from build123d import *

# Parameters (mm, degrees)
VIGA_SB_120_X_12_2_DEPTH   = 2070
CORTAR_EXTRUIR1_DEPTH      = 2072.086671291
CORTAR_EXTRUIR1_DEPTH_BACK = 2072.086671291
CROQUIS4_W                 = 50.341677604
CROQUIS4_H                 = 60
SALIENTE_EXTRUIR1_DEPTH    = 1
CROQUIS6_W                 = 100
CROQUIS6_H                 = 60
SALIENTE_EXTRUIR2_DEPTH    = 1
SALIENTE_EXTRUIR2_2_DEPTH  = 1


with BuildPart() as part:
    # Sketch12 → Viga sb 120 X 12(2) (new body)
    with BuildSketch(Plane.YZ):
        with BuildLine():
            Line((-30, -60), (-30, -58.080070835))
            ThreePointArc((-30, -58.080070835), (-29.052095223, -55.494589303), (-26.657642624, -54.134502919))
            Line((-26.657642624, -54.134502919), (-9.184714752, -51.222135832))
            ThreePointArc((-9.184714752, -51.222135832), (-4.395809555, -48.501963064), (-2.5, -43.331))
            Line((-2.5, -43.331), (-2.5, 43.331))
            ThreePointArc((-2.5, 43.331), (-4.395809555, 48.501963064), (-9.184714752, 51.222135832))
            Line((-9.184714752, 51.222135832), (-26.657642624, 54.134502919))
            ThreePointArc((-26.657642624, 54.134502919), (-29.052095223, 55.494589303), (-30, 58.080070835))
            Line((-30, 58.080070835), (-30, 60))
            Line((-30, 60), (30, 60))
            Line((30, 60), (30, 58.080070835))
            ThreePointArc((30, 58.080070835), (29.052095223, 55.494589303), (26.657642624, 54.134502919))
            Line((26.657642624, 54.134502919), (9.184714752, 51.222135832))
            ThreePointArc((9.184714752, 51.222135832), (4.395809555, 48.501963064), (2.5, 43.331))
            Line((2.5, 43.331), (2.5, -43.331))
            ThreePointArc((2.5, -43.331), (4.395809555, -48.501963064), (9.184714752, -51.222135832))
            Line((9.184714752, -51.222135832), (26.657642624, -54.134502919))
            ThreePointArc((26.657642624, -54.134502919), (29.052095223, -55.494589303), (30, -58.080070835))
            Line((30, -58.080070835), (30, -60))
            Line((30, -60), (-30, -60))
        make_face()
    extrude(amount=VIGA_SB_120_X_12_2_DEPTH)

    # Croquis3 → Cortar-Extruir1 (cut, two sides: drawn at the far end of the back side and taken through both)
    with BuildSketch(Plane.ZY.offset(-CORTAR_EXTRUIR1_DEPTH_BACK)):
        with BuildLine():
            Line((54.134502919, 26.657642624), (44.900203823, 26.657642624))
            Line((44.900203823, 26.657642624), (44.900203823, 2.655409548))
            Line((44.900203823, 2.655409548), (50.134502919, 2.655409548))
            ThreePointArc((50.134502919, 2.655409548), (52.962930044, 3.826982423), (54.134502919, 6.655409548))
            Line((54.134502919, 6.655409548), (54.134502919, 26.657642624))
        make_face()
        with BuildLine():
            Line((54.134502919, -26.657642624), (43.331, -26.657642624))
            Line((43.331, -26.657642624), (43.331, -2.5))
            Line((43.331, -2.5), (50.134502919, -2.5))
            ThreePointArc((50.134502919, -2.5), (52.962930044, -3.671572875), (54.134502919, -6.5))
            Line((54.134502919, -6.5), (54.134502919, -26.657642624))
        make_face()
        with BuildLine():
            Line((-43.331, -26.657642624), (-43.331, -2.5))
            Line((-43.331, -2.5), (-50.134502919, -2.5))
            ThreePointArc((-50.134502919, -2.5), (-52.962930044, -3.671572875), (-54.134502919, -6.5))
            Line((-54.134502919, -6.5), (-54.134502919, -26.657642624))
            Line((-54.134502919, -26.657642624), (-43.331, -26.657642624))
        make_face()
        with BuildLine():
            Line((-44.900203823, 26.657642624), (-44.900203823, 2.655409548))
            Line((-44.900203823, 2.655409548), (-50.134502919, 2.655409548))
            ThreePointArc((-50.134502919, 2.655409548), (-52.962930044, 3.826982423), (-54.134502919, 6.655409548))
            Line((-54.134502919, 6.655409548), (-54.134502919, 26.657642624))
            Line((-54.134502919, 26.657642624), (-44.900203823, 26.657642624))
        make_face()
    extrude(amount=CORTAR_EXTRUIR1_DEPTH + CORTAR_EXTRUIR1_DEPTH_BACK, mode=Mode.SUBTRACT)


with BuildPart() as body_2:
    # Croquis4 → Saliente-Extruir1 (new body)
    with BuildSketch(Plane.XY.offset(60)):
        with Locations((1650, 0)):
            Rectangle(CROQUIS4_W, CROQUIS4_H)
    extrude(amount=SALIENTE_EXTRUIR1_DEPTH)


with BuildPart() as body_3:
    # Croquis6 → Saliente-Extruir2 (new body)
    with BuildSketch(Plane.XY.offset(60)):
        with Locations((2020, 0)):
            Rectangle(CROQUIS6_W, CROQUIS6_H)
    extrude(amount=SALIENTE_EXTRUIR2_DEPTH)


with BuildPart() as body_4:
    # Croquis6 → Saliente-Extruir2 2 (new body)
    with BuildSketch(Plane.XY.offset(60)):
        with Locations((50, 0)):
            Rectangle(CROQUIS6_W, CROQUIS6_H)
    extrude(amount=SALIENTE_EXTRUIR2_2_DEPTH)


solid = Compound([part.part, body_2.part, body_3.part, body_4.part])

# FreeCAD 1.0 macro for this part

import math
import FreeCAD as App
import Part
import Sketcher
from FreeCAD import Vector
Q = App.Units.Quantity

doc = App.newDocument("Part")
body = doc.addObject("PartDesign::Body", "Body")

sketch1 = body.newObject("Sketcher::SketchObject", "Sketch")
sketch1.AttachmentSupport = (doc.getObject("YZ_Plane"), [""])
sketch1.MapMode = "FlatFace"
sketch1.addGeometry(Part.LineSegment(Vector(-30, -58.1, 0), Vector(-30, -60, 0)), False)
sketch1.addGeometry(Part.LineSegment(Vector(-30, -60, 0), Vector(30, -60, 0)), False)
sketch1.addGeometry(Part.LineSegment(Vector(30, -60, 0), Vector(30, -58.1, 0)), False)
sketch1.addGeometry(Part.ArcOfCircle(Part.Circle(Vector(26, -58.1, 0), Vector(0, 0, 1), 4), math.radians(0), math.radians(81)), False)
sketch1.addGeometry(Part.LineSegment(Vector(26.7, -54.1, 0), Vector(9.2, -51.2, 0)), False)
sketch1.addGeometry(Part.ArcOfCircle(Part.Circle(Vector(10.5, -43.3, 0), Vector(0, 0, 1), 8), math.radians(180), math.radians(261)), False)
sketch1.addGeometry(Part.LineSegment(Vector(2.5, -43.3, 0), Vector(2.5, 43.3, 0)), False)
sketch1.addGeometry(Part.ArcOfCircle(Part.Circle(Vector(10.5, 43.3, 0), Vector(0, 0, 1), 8), math.radians(99), math.radians(180)), False)
sketch1.addGeometry(Part.LineSegment(Vector(9.2, 51.2, 0), Vector(26.7, 54.1, 0)), False)
sketch1.addGeometry(Part.ArcOfCircle(Part.Circle(Vector(26, 58.1, 0), Vector(0, 0, 1), 4), math.radians(-81), math.radians(0)), False)
sketch1.addGeometry(Part.LineSegment(Vector(30, 58.1, 0), Vector(30, 60, 0)), False)
sketch1.addGeometry(Part.LineSegment(Vector(30, 60, 0), Vector(-30, 60, 0)), False)
sketch1.addGeometry(Part.LineSegment(Vector(-30, 60, 0), Vector(-30, 58.1, 0)), False)
sketch1.addGeometry(Part.ArcOfCircle(Part.Circle(Vector(-26, 58.1, 0), Vector(0, 0, 1), 4), math.radians(180), math.radians(261)), False)
sketch1.addGeometry(Part.LineSegment(Vector(-26.7, 54.1, 0), Vector(-9.2, 51.2, 0)), False)
sketch1.addGeometry(Part.ArcOfCircle(Part.Circle(Vector(-10.5, 43.3, 0), Vector(0, 0, 1), 8), math.radians(0), math.radians(81)), False)
sketch1.addGeometry(Part.LineSegment(Vector(-2.5, 43.3, 0), Vector(-2.5, -43.3, 0)), False)
sketch1.addGeometry(Part.ArcOfCircle(Part.Circle(Vector(-10.5, -43.3, 0), Vector(0, 0, 1), 8), math.radians(-81), math.radians(0)), False)
sketch1.addGeometry(Part.LineSegment(Vector(-9.2, -51.2, 0), Vector(-26.7, -54.1, 0)), False)
sketch1.addGeometry(Part.ArcOfCircle(Part.Circle(Vector(-26, -58.1, 0), Vector(0, 0, 1), 4), math.radians(99), math.radians(180)), False)
sketch1.addConstraint(Sketcher.Constraint("Coincident", 0, 2, 1, 1))
sketch1.addConstraint(Sketcher.Constraint("Coincident", 1, 2, 2, 1))
sketch1.addConstraint(Sketcher.Constraint("Tangent", 2, 2, 3, 1))
sketch1.addConstraint(Sketcher.Constraint("Tangent", 3, 2, 4, 1))
sketch1.addConstraint(Sketcher.Constraint("Tangent", 4, 2, 5, 2))
sketch1.addConstraint(Sketcher.Constraint("Tangent", 5, 1, 6, 1))
sketch1.addConstraint(Sketcher.Constraint("Tangent", 6, 2, 7, 2))
sketch1.addConstraint(Sketcher.Constraint("Tangent", 7, 1, 8, 1))
sketch1.addConstraint(Sketcher.Constraint("Tangent", 8, 2, 9, 1))
sketch1.addConstraint(Sketcher.Constraint("Tangent", 9, 2, 10, 1))
sketch1.addConstraint(Sketcher.Constraint("Coincident", 10, 2, 11, 1))
sketch1.addConstraint(Sketcher.Constraint("Coincident", 11, 2, 12, 1))
sketch1.addConstraint(Sketcher.Constraint("Tangent", 12, 2, 13, 1))
sketch1.addConstraint(Sketcher.Constraint("Tangent", 13, 2, 14, 1))
sketch1.addConstraint(Sketcher.Constraint("Tangent", 14, 2, 15, 2))
sketch1.addConstraint(Sketcher.Constraint("Tangent", 15, 1, 16, 1))
sketch1.addConstraint(Sketcher.Constraint("Tangent", 16, 2, 17, 2))
sketch1.addConstraint(Sketcher.Constraint("Tangent", 17, 1, 18, 1))
sketch1.addConstraint(Sketcher.Constraint("Tangent", 18, 2, 19, 1))
sketch1.addConstraint(Sketcher.Constraint("Tangent", 19, 2, 0, 1))
sketch1.addConstraint(Sketcher.Constraint("Vertical", 0))
sketch1.addConstraint(Sketcher.Constraint("Horizontal", 1))
sketch1.addConstraint(Sketcher.Constraint("Vertical", 2))
sketch1.addConstraint(Sketcher.Constraint("Vertical", 6))
sketch1.addConstraint(Sketcher.Constraint("Vertical", 10))
sketch1.addConstraint(Sketcher.Constraint("Horizontal", 11))
sketch1.addConstraint(Sketcher.Constraint("Vertical", 12))
sketch1.addConstraint(Sketcher.Constraint("Vertical", 16))
sketch1.addConstraint(Sketcher.Constraint("Equal", 5, 7))
sketch1.addConstraint(Sketcher.Constraint("Equal", 3, 9))
sketch1.addConstraint(Sketcher.Constraint("Equal", 9, 13))
sketch1.addConstraint(Sketcher.Constraint("Equal", 7, 15))
sketch1.addConstraint(Sketcher.Constraint("Equal", 15, 17))
sketch1.addConstraint(Sketcher.Constraint("Equal", 13, 19))
sketch1.addConstraint(Sketcher.Constraint("Symmetric", 3, 3, 13, 3, -1, 1))
sketch1.addConstraint(Sketcher.Constraint("Symmetric", 5, 3, 15, 3, -1, 1))
sketch1.addConstraint(Sketcher.Constraint("Symmetric", 9, 3, 19, 3, -1, 1))
sketch1.addConstraint(Sketcher.Constraint("Symmetric", 9, 3, 13, 3, -2))
sketch1.addConstraint(Sketcher.Constraint("Parallel", 8, 18))
sketch1.addConstraint(Sketcher.Constraint("Horizontal", 7, 3, 15, 3))
sketch1.addConstraint(Sketcher.Constraint("Equal", 2, 10))
sketch1.addConstraint(Sketcher.Constraint("Radius", 3, Q("4 mm")))
sketch1.addConstraint(Sketcher.Constraint("Radius", 5, Q("8 mm")))
sketch1.addConstraint(Sketcher.Constraint("DistanceX", 1, 1, 1, 2, Q("60 mm")))
sketch1.addConstraint(Sketcher.Constraint("DistanceY", 0, 2, -1, 1, Q("60 mm")))
sketch1.addConstraint(Sketcher.Constraint("DistanceX", 15, 3, 7, 3, Q("21 mm")))
sketch1.addConstraint(Sketcher.Constraint("DistanceY", 6, 1, 6, 2, Q("86.662 mm")))
sketch1.addConstraint(Sketcher.Constraint("DistanceY", 0, 2, 0, 1, Q("1.919929 mm")))
pad1 = body.newObject("PartDesign::Pad", "Pad")
pad1.Profile = sketch1
pad1.Length = 2070

sketch2 = body.newObject("Sketcher::SketchObject", "Sketch001")
sketch2.AttachmentSupport = (doc.getObject("YZ_Plane"), [""])
sketch2.MapMode = "FlatFace"
sketch2.addGeometry(Part.LineSegment(Vector(26.7, 54.1, 0), Vector(26.7, 44.9, 0)), False)
sketch2.addGeometry(Part.LineSegment(Vector(26.7, 44.9, 0), Vector(2.7, 44.9, 0)), False)
sketch2.addGeometry(Part.LineSegment(Vector(2.7, 44.9, 0), Vector(2.7, 50.1, 0)), False)
sketch2.addGeometry(Part.ArcOfCircle(Part.Circle(Vector(6.7, 50.1, 0), Vector(0, 0, 1), 4), math.radians(90), math.radians(180)), False)
sketch2.addGeometry(Part.LineSegment(Vector(6.7, 54.1, 0), Vector(26.7, 54.1, 0)), False)
sketch2.addGeometry(Part.LineSegment(Vector(-26.7, 43.3, 0), Vector(-26.7, 54.1, 0)), False)
sketch2.addGeometry(Part.LineSegment(Vector(-26.7, 54.1, 0), Vector(-6.5, 54.1, 0)), False)
sketch2.addGeometry(Part.ArcOfCircle(Part.Circle(Vector(-6.5, 50.1, 0), Vector(0, 0, 1), 4), math.radians(0), math.radians(90)), False)
sketch2.addGeometry(Part.LineSegment(Vector(-2.5, 50.1, 0), Vector(-2.5, 43.3, 0)), False)
sketch2.addGeometry(Part.LineSegment(Vector(-2.5, 43.3, 0), Vector(-26.7, 43.3, 0)), False)
sketch2.addGeometry(Part.LineSegment(Vector(-26.7, -43.3, 0), Vector(-2.5, -43.3, 0)), False)
sketch2.addGeometry(Part.LineSegment(Vector(-2.5, -43.3, 0), Vector(-2.5, -50.1, 0)), False)
sketch2.addGeometry(Part.ArcOfCircle(Part.Circle(Vector(-6.5, -50.1, 0), Vector(0, 0, 1), 4), math.radians(-90), math.radians(0)), False)
sketch2.addGeometry(Part.LineSegment(Vector(-6.5, -54.1, 0), Vector(-26.7, -54.1, 0)), False)
sketch2.addGeometry(Part.LineSegment(Vector(-26.7, -54.1, 0), Vector(-26.7, -43.3, 0)), False)
sketch2.addGeometry(Part.LineSegment(Vector(2.7, -44.9, 0), Vector(26.7, -44.9, 0)), False)
sketch2.addGeometry(Part.LineSegment(Vector(26.7, -44.9, 0), Vector(26.7, -54.1, 0)), False)
sketch2.addGeometry(Part.LineSegment(Vector(26.7, -54.1, 0), Vector(6.7, -54.1, 0)), False)
sketch2.addGeometry(Part.ArcOfCircle(Part.Circle(Vector(6.7, -50.1, 0), Vector(0, 0, 1), 4), math.radians(180), math.radians(270)), False)
sketch2.addGeometry(Part.LineSegment(Vector(2.7, -50.1, 0), Vector(2.7, -44.9, 0)), False)
sketch2.addConstraint(Sketcher.Constraint("Coincident", 0, 2, 1, 1))
sketch2.addConstraint(Sketcher.Constraint("Coincident", 1, 2, 2, 1))
sketch2.addConstraint(Sketcher.Constraint("Tangent", 2, 2, 3, 2))
sketch2.addConstraint(Sketcher.Constraint("Tangent", 3, 1, 4, 1))
sketch2.addConstraint(Sketcher.Constraint("Coincident", 4, 2, 0, 1))
sketch2.addConstraint(Sketcher.Constraint("Coincident", 5, 2, 6, 1))
sketch2.addConstraint(Sketcher.Constraint("Tangent", 6, 2, 7, 2))
sketch2.addConstraint(Sketcher.Constraint("Tangent", 7, 1, 8, 1))
sketch2.addConstraint(Sketcher.Constraint("Coincident", 8, 2, 9, 1))
sketch2.addConstraint(Sketcher.Constraint("Coincident", 9, 2, 5, 1))
sketch2.addConstraint(Sketcher.Constraint("Coincident", 10, 2, 11, 1))
sketch2.addConstraint(Sketcher.Constraint("Tangent", 11, 2, 12, 2))
sketch2.addConstraint(Sketcher.Constraint("Tangent", 12, 1, 13, 1))
sketch2.addConstraint(Sketcher.Constraint("Coincident", 13, 2, 14, 1))
sketch2.addConstraint(Sketcher.Constraint("Coincident", 14, 2, 10, 1))
sketch2.addConstraint(Sketcher.Constraint("Coincident", 15, 2, 16, 1))
sketch2.addConstraint(Sketcher.Constraint("Coincident", 16, 2, 17, 1))
sketch2.addConstraint(Sketcher.Constraint("Tangent", 17, 2, 18, 2))
sketch2.addConstraint(Sketcher.Constraint("Tangent", 18, 1, 19, 1))
sketch2.addConstraint(Sketcher.Constraint("Coincident", 19, 2, 15, 1))
sketch2.addConstraint(Sketcher.Constraint("Vertical", 0))
sketch2.addConstraint(Sketcher.Constraint("Horizontal", 1))
sketch2.addConstraint(Sketcher.Constraint("Vertical", 2))
sketch2.addConstraint(Sketcher.Constraint("Horizontal", 4))
sketch2.addConstraint(Sketcher.Constraint("Vertical", 5))
sketch2.addConstraint(Sketcher.Constraint("Horizontal", 6))
sketch2.addConstraint(Sketcher.Constraint("Vertical", 8))
sketch2.addConstraint(Sketcher.Constraint("Horizontal", 9))
sketch2.addConstraint(Sketcher.Constraint("Horizontal", 10))
sketch2.addConstraint(Sketcher.Constraint("Vertical", 11))
sketch2.addConstraint(Sketcher.Constraint("Horizontal", 13))
sketch2.addConstraint(Sketcher.Constraint("Vertical", 14))
sketch2.addConstraint(Sketcher.Constraint("Horizontal", 15))
sketch2.addConstraint(Sketcher.Constraint("Vertical", 16))
sketch2.addConstraint(Sketcher.Constraint("Horizontal", 17))
sketch2.addConstraint(Sketcher.Constraint("Vertical", 19))
sketch2.addConstraint(Sketcher.Constraint("Equal", 3, 7))
sketch2.addConstraint(Sketcher.Constraint("Equal", 7, 12))
sketch2.addConstraint(Sketcher.Constraint("Equal", 12, 18))
sketch2.addConstraint(Sketcher.Constraint("Symmetric", 4, 2, 13, 2, -1, 1))
sketch2.addConstraint(Sketcher.Constraint("Symmetric", 5, 2, 16, 2, -1, 1))
sketch2.addConstraint(Sketcher.Constraint("Symmetric", 4, 2, 5, 2, -2))
sketch2.addConstraint(Sketcher.Constraint("Symmetric", 8, 2, 10, 2, -1))
sketch2.addConstraint(Sketcher.Constraint("Symmetric", 1, 2, 19, 2, -1))
sketch2.addConstraint(Sketcher.Constraint("Radius", 3, Q("4 mm")))
sketch2.addConstraint(Sketcher.Constraint("DistanceX", 7, 3, -1, 1, Q("6.5 mm")))
sketch2.addConstraint(Sketcher.Constraint("DistanceY", 0, 2, 0, 1, Q("9.234299 mm")))
sketch2.addConstraint(Sketcher.Constraint("DistanceY", -1, 1, 8, 2, Q("43.331 mm")))
sketch2.addConstraint(Sketcher.Constraint("DistanceX", 1, 2, 1, 1, Q("24.002233 mm")))
sketch2.addConstraint(Sketcher.Constraint("DistanceX", 6, 1, 6, 2, Q("20.157643 mm")))
sketch2.addConstraint(Sketcher.Constraint("DistanceY", 5, 1, 5, 2, Q("10.803503 mm")))
pocket1 = body.newObject("PartDesign::Pocket", "Pocket")
pocket1.Profile = sketch2
pocket1.Type = "ThroughAll"
pocket1.Midplane = True
body2 = doc.addObject("PartDesign::Body", "Body001")

sketch3 = body2.newObject("Sketcher::SketchObject", "Sketch002")
sketch3.AttachmentSupport = (doc.getObject("XY_Plane001"), [""])
sketch3.MapMode = "FlatFace"
sketch3.AttachmentOffset = App.Placement(Vector(0, 0, 60), App.Rotation())
sketch3.addGeometry(Part.LineSegment(Vector(1625, 30, 0), Vector(1625, -30, 0)), False)
sketch3.addGeometry(Part.LineSegment(Vector(1625, -30, 0), Vector(1675, -30, 0)), False)
sketch3.addGeometry(Part.LineSegment(Vector(1675, -30, 0), Vector(1675, 30, 0)), False)
sketch3.addGeometry(Part.LineSegment(Vector(1675, 30, 0), Vector(1625, 30, 0)), False)
sketch3.addConstraint(Sketcher.Constraint("Coincident", 0, 2, 1, 1))
sketch3.addConstraint(Sketcher.Constraint("Coincident", 1, 2, 2, 1))
sketch3.addConstraint(Sketcher.Constraint("Coincident", 2, 2, 3, 1))
sketch3.addConstraint(Sketcher.Constraint("Coincident", 3, 2, 0, 1))
sketch3.addConstraint(Sketcher.Constraint("Vertical", 0))
sketch3.addConstraint(Sketcher.Constraint("Horizontal", 1))
sketch3.addConstraint(Sketcher.Constraint("Vertical", 2))
sketch3.addConstraint(Sketcher.Constraint("Horizontal", 3))
sketch3.addConstraint(Sketcher.Constraint("DistanceY", 0, 2, 0, 1, Q("60 mm")))
sketch3.addConstraint(Sketcher.Constraint("DistanceY", 0, 2, -1, 1, Q("30 mm")))
sketch3.addConstraint(Sketcher.Constraint("DistanceX", 1, 1, 1, 2, Q("50.341678 mm")))
sketch3.addConstraint(Sketcher.Constraint("DistanceX", -1, 1, 0, 2, Q("1624.829161 mm")))
pad2 = body2.newObject("PartDesign::Pad", "Pad001")
pad2.Profile = sketch3
pad2.Length = 1
body3 = doc.addObject("PartDesign::Body", "Body002")

sketch4 = body3.newObject("Sketcher::SketchObject", "Sketch003")
sketch4.AttachmentSupport = (doc.getObject("XY_Plane002"), [""])
sketch4.MapMode = "FlatFace"
sketch4.AttachmentOffset = App.Placement(Vector(0, 0, 60), App.Rotation())
sketch4.addGeometry(Part.LineSegment(Vector(1970, 30, 0), Vector(1970, -30, 0)), False)
sketch4.addGeometry(Part.LineSegment(Vector(1970, -30, 0), Vector(2070, -30, 0)), False)
sketch4.addGeometry(Part.LineSegment(Vector(2070, -30, 0), Vector(2070, 30, 0)), False)
sketch4.addGeometry(Part.LineSegment(Vector(2070, 30, 0), Vector(1970, 30, 0)), False)
sketch4.addConstraint(Sketcher.Constraint("Coincident", 0, 2, 1, 1))
sketch4.addConstraint(Sketcher.Constraint("Coincident", 1, 2, 2, 1))
sketch4.addConstraint(Sketcher.Constraint("Coincident", 2, 2, 3, 1))
sketch4.addConstraint(Sketcher.Constraint("Coincident", 3, 2, 0, 1))
sketch4.addConstraint(Sketcher.Constraint("Vertical", 0))
sketch4.addConstraint(Sketcher.Constraint("Horizontal", 1))
sketch4.addConstraint(Sketcher.Constraint("Vertical", 2))
sketch4.addConstraint(Sketcher.Constraint("Horizontal", 3))
sketch4.addConstraint(Sketcher.Constraint("DistanceX", 1, 1, 1, 2, Q("100 mm")))
sketch4.addConstraint(Sketcher.Constraint("DistanceY", 0, 2, 0, 1, Q("60 mm")))
sketch4.addConstraint(Sketcher.Constraint("DistanceX", -1, 1, 0, 2, Q("1970 mm")))
sketch4.addConstraint(Sketcher.Constraint("DistanceY", 0, 2, -1, 1, Q("30 mm")))
pad3 = body3.newObject("PartDesign::Pad", "Pad002")
pad3.Profile = sketch4
pad3.Length = 1
body4 = doc.addObject("PartDesign::Body", "Body003")

sketch5 = body4.newObject("Sketcher::SketchObject", "Sketch004")
sketch5.AttachmentSupport = (doc.getObject("XY_Plane003"), [""])
sketch5.MapMode = "FlatFace"
sketch5.AttachmentOffset = App.Placement(Vector(0, 0, 60), App.Rotation())
sketch5.addGeometry(Part.LineSegment(Vector(0, 30, 0), Vector(0, -30, 0)), False)
sketch5.addGeometry(Part.LineSegment(Vector(0, -30, 0), Vector(100, -30, 0)), False)
sketch5.addGeometry(Part.LineSegment(Vector(100, -30, 0), Vector(100, 30, 0)), False)
sketch5.addGeometry(Part.LineSegment(Vector(100, 30, 0), Vector(0, 30, 0)), False)
sketch5.addConstraint(Sketcher.Constraint("Coincident", 0, 2, 1, 1))
sketch5.addConstraint(Sketcher.Constraint("Coincident", 1, 2, 2, 1))
sketch5.addConstraint(Sketcher.Constraint("Coincident", 2, 2, 3, 1))
sketch5.addConstraint(Sketcher.Constraint("Coincident", 3, 2, 0, 1))
sketch5.addConstraint(Sketcher.Constraint("Vertical", 0))
sketch5.addConstraint(Sketcher.Constraint("Horizontal", 1))
sketch5.addConstraint(Sketcher.Constraint("Vertical", 2))
sketch5.addConstraint(Sketcher.Constraint("Horizontal", 3))
sketch5.addConstraint(Sketcher.Constraint("Symmetric", 0, 2, 3, 2, -1, 1))
sketch5.addConstraint(Sketcher.Constraint("DistanceX", 1, 1, 1, 2, Q("100 mm")))
sketch5.addConstraint(Sketcher.Constraint("DistanceY", 0, 2, 0, 1, Q("60 mm")))
pad4 = body4.newObject("PartDesign::Pad", "Pad003")
pad4.Profile = sketch5
pad4.Length = 1

doc.recompute()
